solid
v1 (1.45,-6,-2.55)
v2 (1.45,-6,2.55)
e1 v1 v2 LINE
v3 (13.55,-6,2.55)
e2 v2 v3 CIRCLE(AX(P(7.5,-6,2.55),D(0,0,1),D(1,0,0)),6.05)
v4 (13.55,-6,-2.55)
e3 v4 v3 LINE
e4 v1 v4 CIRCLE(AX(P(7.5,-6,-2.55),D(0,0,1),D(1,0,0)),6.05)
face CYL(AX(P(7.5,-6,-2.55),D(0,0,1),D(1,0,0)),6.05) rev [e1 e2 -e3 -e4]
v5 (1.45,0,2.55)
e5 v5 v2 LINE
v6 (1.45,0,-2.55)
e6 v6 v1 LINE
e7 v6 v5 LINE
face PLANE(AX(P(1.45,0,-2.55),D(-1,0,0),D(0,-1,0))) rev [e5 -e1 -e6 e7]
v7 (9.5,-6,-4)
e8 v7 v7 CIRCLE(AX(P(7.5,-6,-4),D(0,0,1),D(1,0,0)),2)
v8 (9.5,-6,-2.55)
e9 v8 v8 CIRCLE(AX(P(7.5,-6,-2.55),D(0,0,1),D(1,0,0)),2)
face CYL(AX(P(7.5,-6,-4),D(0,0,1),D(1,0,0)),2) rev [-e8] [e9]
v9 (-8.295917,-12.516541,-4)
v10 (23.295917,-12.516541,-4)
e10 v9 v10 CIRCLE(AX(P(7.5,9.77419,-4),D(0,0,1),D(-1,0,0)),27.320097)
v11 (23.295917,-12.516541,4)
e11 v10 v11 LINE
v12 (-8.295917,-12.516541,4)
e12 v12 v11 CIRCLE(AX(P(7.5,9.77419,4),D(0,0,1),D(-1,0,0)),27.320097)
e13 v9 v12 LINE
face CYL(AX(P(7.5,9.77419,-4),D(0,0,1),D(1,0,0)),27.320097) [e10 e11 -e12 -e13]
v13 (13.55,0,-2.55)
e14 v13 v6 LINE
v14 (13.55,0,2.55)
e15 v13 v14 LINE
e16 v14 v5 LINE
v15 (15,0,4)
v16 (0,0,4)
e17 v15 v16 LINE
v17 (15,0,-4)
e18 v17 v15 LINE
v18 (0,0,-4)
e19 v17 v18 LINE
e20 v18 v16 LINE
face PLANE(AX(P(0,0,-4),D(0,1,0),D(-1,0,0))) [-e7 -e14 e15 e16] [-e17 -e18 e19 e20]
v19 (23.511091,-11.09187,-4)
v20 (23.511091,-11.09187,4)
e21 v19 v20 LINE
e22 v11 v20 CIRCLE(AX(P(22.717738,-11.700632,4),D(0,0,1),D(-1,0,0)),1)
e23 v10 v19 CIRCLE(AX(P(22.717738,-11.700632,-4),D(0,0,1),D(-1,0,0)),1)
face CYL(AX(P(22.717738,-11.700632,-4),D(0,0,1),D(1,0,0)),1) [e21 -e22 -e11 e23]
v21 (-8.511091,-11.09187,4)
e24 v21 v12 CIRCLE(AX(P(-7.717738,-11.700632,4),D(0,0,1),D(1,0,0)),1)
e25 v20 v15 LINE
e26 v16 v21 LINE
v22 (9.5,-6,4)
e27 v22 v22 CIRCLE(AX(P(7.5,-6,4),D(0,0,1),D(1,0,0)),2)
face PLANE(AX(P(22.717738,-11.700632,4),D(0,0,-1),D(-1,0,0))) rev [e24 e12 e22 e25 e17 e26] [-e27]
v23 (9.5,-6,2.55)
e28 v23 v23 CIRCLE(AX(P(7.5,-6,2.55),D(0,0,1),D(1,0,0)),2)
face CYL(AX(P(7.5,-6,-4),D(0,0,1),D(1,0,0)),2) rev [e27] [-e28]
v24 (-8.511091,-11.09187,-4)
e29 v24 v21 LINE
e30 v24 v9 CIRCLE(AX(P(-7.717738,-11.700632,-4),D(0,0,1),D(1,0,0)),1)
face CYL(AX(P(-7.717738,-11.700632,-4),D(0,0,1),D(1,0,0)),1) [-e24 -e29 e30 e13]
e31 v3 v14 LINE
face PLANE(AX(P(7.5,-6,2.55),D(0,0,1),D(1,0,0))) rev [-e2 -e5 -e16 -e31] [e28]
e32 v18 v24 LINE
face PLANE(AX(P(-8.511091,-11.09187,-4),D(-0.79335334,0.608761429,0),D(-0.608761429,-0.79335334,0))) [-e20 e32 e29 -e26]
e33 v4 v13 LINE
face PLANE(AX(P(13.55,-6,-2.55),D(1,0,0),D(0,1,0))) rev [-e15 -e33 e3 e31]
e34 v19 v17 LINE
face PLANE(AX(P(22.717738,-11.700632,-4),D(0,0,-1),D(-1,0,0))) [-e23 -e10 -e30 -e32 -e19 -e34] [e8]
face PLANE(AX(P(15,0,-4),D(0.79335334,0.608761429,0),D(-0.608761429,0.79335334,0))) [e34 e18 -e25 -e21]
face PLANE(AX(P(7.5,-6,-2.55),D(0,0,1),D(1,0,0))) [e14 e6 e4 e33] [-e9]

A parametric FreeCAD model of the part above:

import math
import FreeCAD as App
import Part
import Sketcher
from FreeCAD import Vector
Q = App.Units.Quantity

doc = App.newDocument("Part")
body = doc.addObject("PartDesign::Body", "Body")

sketch1 = doc.addObject("Sketcher::SketchObject", "Sketch")
body.addObject(sketch1)
sketch1.AttachmentSupport = (doc.XY_Plane, [""])
sketch1.MapMode = "FlatFace"
sketch1.addGeometry([
    Part.LineSegment(Vector(15, 0, 0), Vector(0, 0, 0)),
    Part.LineSegment(Vector(0, 0, 0), Vector(-8.511091, -11.09187, 0)),
    Part.ArcOfCircle(Part.Circle(Vector(-7.717738, -11.700632, 0), Vector(0, 0, 1), 1), math.radians(142.5), math.radians(234.677407)),
    Part.ArcOfCircle(Part.Circle(Vector(7.5, 9.77419, 0), Vector(0, 0, 1), 27.320097), math.radians(-125.322593), math.radians(-54.677407)),
    Part.ArcOfCircle(Part.Circle(Vector(22.717738, -11.700632, 0), Vector(0, 0, 1), 1), math.radians(-54.677407), math.radians(37.5)),
    Part.LineSegment(Vector(23.511091, -11.09187, 0), Vector(15, 0, 0)),
], False)
sketch1.addConstraint([
    Sketcher.Constraint("Coincident", 0, 2, 1, 1),
    Sketcher.Constraint("Tangent", 1, 2, 2, 1),
    Sketcher.Constraint("Tangent", 2, 2, 3, 1),
    Sketcher.Constraint("Tangent", 3, 2, 4, 1),
    Sketcher.Constraint("Tangent", 4, 2, 5, 1),
    Sketcher.Constraint("Coincident", 5, 2, 0, 1),
    Sketcher.Constraint("Horizontal", 0),
    Sketcher.Constraint("Coincident", 0, 2, -1, 1),
    Sketcher.Constraint("Equal", 2, 4),
    Sketcher.Constraint("Horizontal", 2, 3, 4, 3),
    Sketcher.Constraint("Horizontal", 1, 2, 4, 2),
    Sketcher.Constraint("Radius", 2, 1.0),
    Sketcher.Constraint("DistanceX", 0, 2, 0, 1, 15.0),
    Sketcher.Constraint("Angle", 1, Q("-127.5 deg")),
    Sketcher.Constraint("Radius", 3, 27.320097),
    Sketcher.Constraint("DistanceY", 2, 3, -1, 1, 11.700632),
])
pad1 = doc.addObject("PartDesign::Pad", "Pad")
body.addObject(pad1)
pad1.Profile = sketch1
pad1.Length = 8
pad1.Midplane = True

sketch2 = doc.addObject("Sketcher::SketchObject", "Sketch001")
body.addObject(sketch2)
sketch2.AttachmentSupport = (doc.XY_Plane, [""])
sketch2.MapMode = "FlatFace"
sketch2.addGeometry([
    Part.LineSegment(Vector(1.45, 0, 0), Vector(1.45, -6, 0)),
    Part.ArcOfCircle(Part.Circle(Vector(7.5, -6, 0), Vector(0, 0, 1), 6.05), math.radians(180), math.radians(360)),
    Part.LineSegment(Vector(13.55, -6, 0), Vector(13.55, 0, 0)),
    Part.LineSegment(Vector(13.55, 0, 0), Vector(1.45, 0, 0)),
], False)
sketch2.addConstraint([
    Sketcher.Constraint("Tangent", 0, 2, 1, 1),
    Sketcher.Constraint("Tangent", 1, 2, 2, 1),
    Sketcher.Constraint("Coincident", 2, 2, 3, 1),
    Sketcher.Constraint("Coincident", 3, 2, 0, 1),
    Sketcher.Constraint("Vertical", 0),
    Sketcher.Constraint("Vertical", 2),
    Sketcher.Constraint("Horizontal", 3),
    Sketcher.Constraint("PointOnObject", 2, 2, -1),
    Sketcher.Constraint("DistanceY", 0, 2, 0, 1, 6.0),
    Sketcher.Constraint("Radius", 1, 6.05),
    Sketcher.Constraint("DistanceX", -1, 1, 1, 3, 7.5),
])
pocket1 = doc.addObject("PartDesign::Pocket", "Pocket")
body.addObject(pocket1)
pocket1.Profile = sketch2
pocket1.Length = 5.1
pocket1.Midplane = True

sketch3 = doc.addObject("Sketcher::SketchObject", "Sketch002")
body.addObject(sketch3)
sketch3.AttachmentSupport = (doc.XY_Plane, [""])
sketch3.MapMode = "FlatFace"
sketch3.AttachmentOffset = App.Placement(Vector(0, 0, 4), App.Rotation())
sketch3.addGeometry(Part.Circle(Vector(7.5, -6, 0), Vector(0, 0, 1), 2), False)
sketch3.addConstraint([
    Sketcher.Constraint("Diameter", 0, 4.0),
    Sketcher.Constraint("DistanceY", 0, 3, -1, 1, 6.0),
    Sketcher.Constraint("DistanceX", -1, 1, 0, 3, 7.5),
])
pocket2 = doc.addObject("PartDesign::Pocket", "Pocket001")
body.addObject(pocket2)
pocket2.Profile = sketch3
pocket2.Type = "ThroughAll"

doc.recompute()
